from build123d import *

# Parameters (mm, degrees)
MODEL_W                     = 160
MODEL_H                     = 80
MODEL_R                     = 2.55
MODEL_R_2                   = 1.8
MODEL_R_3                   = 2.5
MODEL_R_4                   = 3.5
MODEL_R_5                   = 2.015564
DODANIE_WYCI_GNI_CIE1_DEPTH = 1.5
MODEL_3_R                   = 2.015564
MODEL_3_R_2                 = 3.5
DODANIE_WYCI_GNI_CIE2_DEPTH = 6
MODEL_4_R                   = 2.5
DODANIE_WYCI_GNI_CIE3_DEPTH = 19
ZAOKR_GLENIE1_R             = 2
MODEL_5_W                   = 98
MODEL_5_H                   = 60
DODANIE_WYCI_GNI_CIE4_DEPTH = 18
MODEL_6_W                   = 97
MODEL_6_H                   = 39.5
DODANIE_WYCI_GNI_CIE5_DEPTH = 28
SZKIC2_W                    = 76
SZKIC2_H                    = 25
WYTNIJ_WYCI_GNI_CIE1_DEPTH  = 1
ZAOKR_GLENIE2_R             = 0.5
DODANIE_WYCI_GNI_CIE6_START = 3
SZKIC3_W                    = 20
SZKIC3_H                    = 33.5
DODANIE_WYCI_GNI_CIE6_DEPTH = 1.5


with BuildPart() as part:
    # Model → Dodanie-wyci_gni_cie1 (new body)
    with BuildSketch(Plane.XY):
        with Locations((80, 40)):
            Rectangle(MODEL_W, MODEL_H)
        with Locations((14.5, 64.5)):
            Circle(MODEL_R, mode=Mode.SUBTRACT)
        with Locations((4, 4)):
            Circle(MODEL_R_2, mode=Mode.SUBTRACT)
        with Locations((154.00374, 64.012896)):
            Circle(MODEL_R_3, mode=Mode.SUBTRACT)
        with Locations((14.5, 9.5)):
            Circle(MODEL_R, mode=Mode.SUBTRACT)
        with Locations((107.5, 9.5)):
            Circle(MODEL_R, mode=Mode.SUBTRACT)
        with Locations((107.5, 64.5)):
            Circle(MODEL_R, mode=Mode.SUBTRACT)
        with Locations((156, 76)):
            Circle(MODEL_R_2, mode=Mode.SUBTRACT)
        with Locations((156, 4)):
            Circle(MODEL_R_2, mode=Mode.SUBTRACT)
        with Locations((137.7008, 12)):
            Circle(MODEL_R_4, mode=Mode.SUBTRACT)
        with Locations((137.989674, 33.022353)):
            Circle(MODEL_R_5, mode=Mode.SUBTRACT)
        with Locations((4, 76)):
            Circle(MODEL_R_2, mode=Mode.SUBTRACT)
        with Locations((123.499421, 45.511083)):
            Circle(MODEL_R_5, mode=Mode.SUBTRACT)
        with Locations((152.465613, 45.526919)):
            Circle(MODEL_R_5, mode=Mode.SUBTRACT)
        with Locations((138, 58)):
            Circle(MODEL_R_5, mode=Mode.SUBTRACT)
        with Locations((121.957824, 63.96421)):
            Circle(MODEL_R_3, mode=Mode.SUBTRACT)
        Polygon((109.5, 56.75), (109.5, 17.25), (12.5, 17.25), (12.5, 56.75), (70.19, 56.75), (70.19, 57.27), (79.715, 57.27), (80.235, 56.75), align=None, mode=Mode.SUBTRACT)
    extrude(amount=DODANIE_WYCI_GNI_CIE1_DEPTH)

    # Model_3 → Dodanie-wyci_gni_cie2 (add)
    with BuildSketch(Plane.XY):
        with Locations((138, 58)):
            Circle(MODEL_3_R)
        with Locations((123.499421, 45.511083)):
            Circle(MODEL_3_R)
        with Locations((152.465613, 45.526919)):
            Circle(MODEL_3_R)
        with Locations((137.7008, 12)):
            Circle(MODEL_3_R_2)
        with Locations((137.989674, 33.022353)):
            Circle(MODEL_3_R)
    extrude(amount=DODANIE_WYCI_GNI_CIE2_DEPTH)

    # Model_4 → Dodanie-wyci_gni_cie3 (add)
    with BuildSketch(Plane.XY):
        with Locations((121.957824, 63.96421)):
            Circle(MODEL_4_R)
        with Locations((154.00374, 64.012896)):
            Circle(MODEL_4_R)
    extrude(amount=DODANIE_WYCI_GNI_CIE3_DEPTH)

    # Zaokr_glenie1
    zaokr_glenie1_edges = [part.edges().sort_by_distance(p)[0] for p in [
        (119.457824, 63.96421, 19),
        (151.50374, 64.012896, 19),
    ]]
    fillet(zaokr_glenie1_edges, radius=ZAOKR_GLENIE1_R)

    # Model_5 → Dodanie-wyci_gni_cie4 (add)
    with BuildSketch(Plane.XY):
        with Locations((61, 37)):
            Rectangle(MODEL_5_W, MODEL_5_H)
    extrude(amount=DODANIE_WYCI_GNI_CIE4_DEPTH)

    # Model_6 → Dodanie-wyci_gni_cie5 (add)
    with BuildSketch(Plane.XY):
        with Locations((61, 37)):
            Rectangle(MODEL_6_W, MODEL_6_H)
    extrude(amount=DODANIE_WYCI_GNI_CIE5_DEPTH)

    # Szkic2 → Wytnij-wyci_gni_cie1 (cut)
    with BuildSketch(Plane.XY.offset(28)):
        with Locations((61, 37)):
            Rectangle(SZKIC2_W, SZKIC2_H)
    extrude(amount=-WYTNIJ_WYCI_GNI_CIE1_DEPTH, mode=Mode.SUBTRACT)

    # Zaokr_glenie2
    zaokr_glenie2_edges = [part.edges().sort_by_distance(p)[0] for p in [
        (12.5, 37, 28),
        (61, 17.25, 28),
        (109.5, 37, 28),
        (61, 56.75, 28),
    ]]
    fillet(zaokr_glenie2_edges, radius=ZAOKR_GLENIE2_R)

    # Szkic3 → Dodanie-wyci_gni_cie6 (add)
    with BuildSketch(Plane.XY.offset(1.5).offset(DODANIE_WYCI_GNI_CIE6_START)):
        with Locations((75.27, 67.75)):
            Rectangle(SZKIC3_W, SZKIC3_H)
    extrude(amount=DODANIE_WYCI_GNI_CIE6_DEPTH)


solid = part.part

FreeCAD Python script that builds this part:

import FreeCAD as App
import Part
import Sketcher
Q = App.Units.Quantity


def edges_at(feature, points):
    """Names of the edges that pass closest to the given points."""
    edges = feature.Shape.Edges
    near = lambda p: min(range(len(edges)), key=lambda i: edges[i].distToShape(Part.Vertex(*p))[0])
    return sorted({f"Edge{near(p) + 1}" for p in points})


def add_polygon(sketch, points):
    """Adds a closed chain of lines whose ends are joined by coincident constraints."""
    first, n = sketch.GeometryCount, len(points)
    for a, b in zip(points, points[1:] + points[:1]):
        sketch.addGeometry(Part.LineSegment(App.Vector(*a, 0), App.Vector(*b, 0)), False)
    for i in range(n):
        sketch.addConstraint(Sketcher.Constraint("Coincident", first + i, 2, first + (i + 1) % n, 1))

doc = App.newDocument("Part")
body = doc.addObject("PartDesign::Body", "Body")

# Sketch on XY plane
sketch1 = body.newObject("Sketcher::SketchObject", "Sketch")
sketch1.AttachmentSupport = (doc.getObject("XY_Plane"), [""])
sketch1.MapMode = "FlatFace"
add_polygon(sketch1, [(0, 80), (0, 0), (160, 0), (160, 80)])  # lines 0-3
sketch1.addGeometry(Part.Circle(App.Vector(4, 4, 0), App.Vector(0, 0, 1), 1.8), False)  # 4
sketch1.addGeometry(Part.Circle(App.Vector(14.5, 9.5, 0), App.Vector(0, 0, 1), 2.55), False)  # 5
add_polygon(sketch1, [(80.235, 56.75), (109.5, 56.75), (109.5, 17.25), (12.5, 17.25), (12.5, 56.75), (70.19, 56.75), (70.19, 57.27), (79.715, 57.27)])  # lines 6-13
sketch1.addGeometry(Part.Circle(App.Vector(107.5, 9.5, 0), App.Vector(0, 0, 1), 2.55), False)  # 14
sketch1.addGeometry(Part.Circle(App.Vector(156, 4, 0), App.Vector(0, 0, 1), 1.8), False)  # 15
sketch1.addGeometry(Part.Circle(App.Vector(137.7008, 12, 0), App.Vector(0, 0, 1), 3.5), False)  # 16
sketch1.addGeometry(Part.Circle(App.Vector(137.989674, 33.022353, 0), App.Vector(0, 0, 1), 2.015564), False)  # 17
sketch1.addGeometry(Part.Circle(App.Vector(14.5, 64.5, 0), App.Vector(0, 0, 1), 2.55), False)  # 18
sketch1.addGeometry(Part.Circle(App.Vector(4, 76, 0), App.Vector(0, 0, 1), 1.8), False)  # 19
sketch1.addGeometry(Part.Circle(App.Vector(123.499421, 45.511083, 0), App.Vector(0, 0, 1), 2.015564), False)  # 20
sketch1.addGeometry(Part.Circle(App.Vector(152.465613, 45.526919, 0), App.Vector(0, 0, 1), 2.015564), False)  # 21
sketch1.addGeometry(Part.Circle(App.Vector(138, 58, 0), App.Vector(0, 0, 1), 2.015564), False)  # 22
sketch1.addGeometry(Part.Circle(App.Vector(107.5, 64.5, 0), App.Vector(0, 0, 1), 2.55), False)  # 23
sketch1.addGeometry(Part.Circle(App.Vector(121.957824, 63.96421, 0), App.Vector(0, 0, 1), 2.5), False)  # 24
sketch1.addGeometry(Part.Circle(App.Vector(154.00374, 64.012896, 0), App.Vector(0, 0, 1), 2.5), False)  # 25
sketch1.addGeometry(Part.Circle(App.Vector(156, 76, 0), App.Vector(0, 0, 1), 1.8), False)  # 26
sketch1.addConstraint([
    Sketcher.Constraint("Vertical", 0),
    Sketcher.Constraint("Horizontal", 1),
    Sketcher.Constraint("Vertical", 2),
    Sketcher.Constraint("Horizontal", 3),
    Sketcher.Constraint("Horizontal", 6),
    Sketcher.Constraint("Vertical", 7),
    Sketcher.Constraint("Horizontal", 8),
    Sketcher.Constraint("Vertical", 9),
    Sketcher.Constraint("Horizontal", 10),
    Sketcher.Constraint("Vertical", 11),
    Sketcher.Constraint("Horizontal", 12),
    Sketcher.Constraint("Coincident", 0, 2, -1, 1),
    Sketcher.Constraint("Equal", 5, 14),
    Sketcher.Constraint("Equal", 4, 15),
    Sketcher.Constraint("Equal", 14, 18),
    Sketcher.Constraint("Equal", 15, 19),
    Sketcher.Constraint("Equal", 17, 20),
    Sketcher.Constraint("Equal", 20, 21),
    Sketcher.Constraint("Equal", 21, 22),
    Sketcher.Constraint("Equal", 18, 23),
    Sketcher.Constraint("Equal", 24, 25),
    Sketcher.Constraint("Equal", 19, 26),
    Sketcher.Constraint("Horizontal", 5, 3, 14, 3),
    Sketcher.Constraint("Horizontal", 4, 3, 15, 3),
    Sketcher.Constraint("Horizontal", 18, 3, 23, 3),
    Sketcher.Constraint("Horizontal", 19, 3, 26, 3),
    Sketcher.Constraint("Horizontal", 6, 2, 9, 2),
    Sketcher.Constraint("Vertical", 5, 3, 18, 3),
    Sketcher.Constraint("Vertical", 4, 3, 19, 3),
    Sketcher.Constraint("Vertical", 14, 3, 23, 3),
    Sketcher.Constraint("Vertical", 15, 3, 26, 3),
    Sketcher.Constraint("Diameter", 16, 7.0),
    Sketcher.Constraint("Diameter", 24, 5.0),
    Sketcher.Constraint("Diameter", 4, 3.6),
    Sketcher.Constraint("Diameter", 5, 5.1),
    Sketcher.Constraint("DistanceX", 1, 1, 1, 2, 160.0),
    Sketcher.Constraint("DistanceX", 8, 2, 8, 1, 97.0),
    Sketcher.Constraint("DistanceY", 0, 2, 0, 1, 80.0),
    Sketcher.Constraint("Angle", 13, Q("-45 deg")),
    Sketcher.Constraint("DistanceY", 7, 2, 7, 1, 39.5),
    Sketcher.Constraint("DistanceX", -1, 1, 4, 3, 4.0),
    Sketcher.Constraint("DistanceY", -1, 1, 4, 3, 4.0),
    Sketcher.Constraint("DistanceX", -1, 1, 15, 3, 156.0),
    Sketcher.Constraint("DistanceY", -1, 1, 16, 3, 12.0),
    Sketcher.Constraint("DistanceY", -1, 1, 19, 3, 76.0),
    Sketcher.Constraint("DistanceX", -1, 1, 22, 3, 138.0),
    Sketcher.Constraint("DistanceY", -1, 1, 22, 3, 58.0),
    Sketcher.Constraint("DistanceX", 5, 3, 14, 3, 93.0),
    Sketcher.Constraint("DistanceY", 5, 3, 18, 3, 55.0),
    Sketcher.Constraint("DistanceX", 23, 3, 6, 2, 2.0),
    Sketcher.Constraint("DistanceX", 10, 1, 10, 2, 57.69),
    Sketcher.Constraint("DistanceY", 11, 1, 11, 2, 0.52),
    Sketcher.Constraint("DistanceX", -1, 1, 5, 3, 14.5),
    Sketcher.Constraint("DistanceY", -1, 1, 5, 3, 9.5),
    Sketcher.Constraint("DistanceX", 6, 1, 6, 2, 29.265),
    Sketcher.Constraint("DistanceY", -1, 1, 6, 2, 56.75),
    Sketcher.Constraint("Diameter", 17, 4.031128),
    Sketcher.Constraint("DistanceX", -1, 1, 16, 3, 137.7008),
    Sketcher.Constraint("DistanceX", -1, 1, 20, 3, 123.499421),
    Sketcher.Constraint("DistanceY", -1, 1, 21, 3, 45.526919),
    Sketcher.Constraint("DistanceY", -1, 1, 24, 3, 63.96421),
    Sketcher.Constraint("DistanceX", -1, 1, 25, 3, 154.00374),
    Sketcher.Constraint("DistanceY", 17, 3, 20, 3, 12.48873),
    Sketcher.Constraint("DistanceX", 17, 3, 21, 3, 14.475939),
    Sketcher.Constraint("DistanceX", 20, 3, 21, 3, 28.966192),
    Sketcher.Constraint("DistanceX", 24, 3, 17, 3, 16.03185),
    Sketcher.Constraint("DistanceY", -1, 1, 17, 3, 33.022353),
    Sketcher.Constraint("DistanceY", -1, 1, 25, 3, 64.012896),
])
pad1 = body.newObject("PartDesign::Pad", "Pad")
pad1.Profile = sketch1
pad1.Length = 1.5

# Sketch on XY plane
sketch2 = body.newObject("Sketcher::SketchObject", "Sketch001")
sketch2.AttachmentSupport = (doc.getObject("XY_Plane"), [""])
sketch2.MapMode = "FlatFace"
sketch2.addGeometry([
    Part.Circle(App.Vector(138, 58, 0), App.Vector(0, 0, 1), 2.015564),  # 0
    Part.Circle(App.Vector(123.499421, 45.511083, 0), App.Vector(0, 0, 1), 2.015564),  # 1
    Part.Circle(App.Vector(152.465613, 45.526919, 0), App.Vector(0, 0, 1), 2.015564),  # 2
    Part.Circle(App.Vector(137.7008, 12, 0), App.Vector(0, 0, 1), 3.5),  # 3
    Part.Circle(App.Vector(137.989674, 33.022353, 0), App.Vector(0, 0, 1), 2.015564),  # 4
], False)
sketch2.addConstraint([
    Sketcher.Constraint("Equal", 0, 1),
    Sketcher.Constraint("Equal", 1, 2),
    Sketcher.Constraint("Equal", 2, 4),
    Sketcher.Constraint("Diameter", 3, 7.0),
    Sketcher.Constraint("DistanceX", -1, 1, 0, 3, 138.0),
    Sketcher.Constraint("DistanceY", -1, 1, 0, 3, 58.0),
    Sketcher.Constraint("DistanceY", -1, 1, 3, 3, 12.0),
    Sketcher.Constraint("Diameter", 0, 4.031128),
    Sketcher.Constraint("DistanceX", -1, 1, 3, 3, 137.7008),
    Sketcher.Constraint("DistanceX", -1, 1, 1, 3, 123.499421),
    Sketcher.Constraint("DistanceY", -1, 1, 2, 3, 45.526919),
    Sketcher.Constraint("DistanceX", 1, 3, 2, 3, 28.966192),
    Sketcher.Constraint("DistanceX", 4, 3, 2, 3, 14.475939),
    Sketcher.Constraint("DistanceY", 4, 3, 1, 3, 12.48873),
    Sketcher.Constraint("DistanceY", -1, 1, 1, 3, 45.511083),
])
pad2 = body.newObject("PartDesign::Pad", "Pad001")
pad2.Profile = sketch2
pad2.Length = 6

# Sketch on XY plane
sketch3 = body.newObject("Sketcher::SketchObject", "Sketch002")
sketch3.AttachmentSupport = (doc.getObject("XY_Plane"), [""])
sketch3.MapMode = "FlatFace"
sketch3.addGeometry([
    Part.Circle(App.Vector(121.957824, 63.96421, 0), App.Vector(0, 0, 1), 2.5),
    Part.Circle(App.Vector(154.00374, 64.012896, 0), App.Vector(0, 0, 1), 2.5),
], False)
sketch3.addConstraint([
    Sketcher.Constraint("Equal", 0, 1),
    Sketcher.Constraint("Diameter", 0, 5.0),
    Sketcher.Constraint("DistanceY", -1, 1, 0, 3, 63.96421),
    Sketcher.Constraint("DistanceX", -1, 1, 1, 3, 154.00374),
    Sketcher.Constraint("DistanceX", -1, 1, 0, 3, 121.957824),
    Sketcher.Constraint("DistanceY", -1, 1, 1, 3, 64.012896),
])
pad3 = body.newObject("PartDesign::Pad", "Pad002")
pad3.Profile = sketch3
pad3.Length = 19
doc.recompute()

fillet = body.newObject("PartDesign::Fillet", "Fillet")
fillet.Base = (pad3, edges_at(pad3, [(119.458, 63.964, 19), (151.504, 64.013, 19)]))
fillet.Radius = 2

# Sketch on XY plane
sketch4 = body.newObject("Sketcher::SketchObject", "Sketch003")
sketch4.AttachmentSupport = (doc.getObject("XY_Plane"), [""])
sketch4.MapMode = "FlatFace"
add_polygon(sketch4, [(12, 67), (12, 7), (110, 7), (110, 67)])  # lines 0-3
sketch4.addConstraint([
    Sketcher.Constraint("Vertical", 0),
    Sketcher.Constraint("Horizontal", 1),
    Sketcher.Constraint("Vertical", 2),
    Sketcher.Constraint("Horizontal", 3),
    Sketcher.Constraint("DistanceX", 1, 1, 1, 2, 98.0),
    Sketcher.Constraint("DistanceY", 0, 2, 0, 1, 60.0),
    Sketcher.Constraint("DistanceX", -1, 1, 0, 2, 12.0),
    Sketcher.Constraint("DistanceY", -1, 1, 0, 2, 7.0),
])
pad4 = body.newObject("PartDesign::Pad", "Pad003")
pad4.Profile = sketch4
pad4.Length = 18

# Sketch on XY plane
sketch5 = body.newObject("Sketcher::SketchObject", "Sketch004")
sketch5.AttachmentSupport = (doc.getObject("XY_Plane"), [""])
sketch5.MapMode = "FlatFace"
add_polygon(sketch5, [(12.5, 56.75), (12.5, 17.25), (109.5, 17.25), (109.5, 56.75)])  # lines 0-3
sketch5.addConstraint([
    Sketcher.Constraint("Vertical", 0),
    Sketcher.Constraint("Horizontal", 1),
    Sketcher.Constraint("Vertical", 2),
    Sketcher.Constraint("Horizontal", 3),
    Sketcher.Constraint("DistanceX", 1, 1, 1, 2, 97.0),
    Sketcher.Constraint("DistanceY", 0, 2, 0, 1, 39.5),
    Sketcher.Constraint("DistanceX", -1, 1, 0, 2, 12.5),
    Sketcher.Constraint("DistanceY", -1, 1, 0, 2, 17.25),
])
pad5 = body.newObject("PartDesign::Pad", "Pad004")
pad5.Profile = sketch5
pad5.Length = 28

# Sketch on XY plane
sketch6 = body.newObject("Sketcher::SketchObject", "Sketch005")
sketch6.AttachmentSupport = (doc.getObject("XY_Plane"), [""])
sketch6.MapMode = "FlatFace"
sketch6.AttachmentOffset = App.Placement(App.Vector(0, 0, 28), App.Rotation())
add_polygon(sketch6, [(23, 49.5), (23, 24.5), (99, 24.5), (99, 49.5)])  # lines 0-3
sketch6.addConstraint([
    Sketcher.Constraint("Vertical", 0),
    Sketcher.Constraint("Horizontal", 1),
    Sketcher.Constraint("Vertical", 2),
    Sketcher.Constraint("Horizontal", 3),
    Sketcher.Constraint("DistanceX", 1, 1, 1, 2, 76.0),
    Sketcher.Constraint("DistanceY", 0, 2, 0, 1, 25.0),
    Sketcher.Constraint("DistanceX", -1, 1, 0, 2, 23.0),
    Sketcher.Constraint("DistanceY", -1, 1, 0, 2, 24.5),
])
pocket1 = body.newObject("PartDesign::Pocket", "Pocket")
pocket1.Profile = sketch6
pocket1.Length = 1
doc.recompute()

fillet2 = body.newObject("PartDesign::Fillet", "Fillet001")
fillet2.Base = (pocket1, edges_at(pocket1, [
    (12.5, 37, 28),
    (61, 17.25, 28),
    (109.5, 37, 28),
    (61, 56.75, 28),
]))
fillet2.Radius = 0.5

# Sketch on XY plane
sketch7 = body.newObject("Sketcher::SketchObject", "Sketch006")
sketch7.AttachmentSupport = (doc.getObject("XY_Plane"), [""])
sketch7.MapMode = "FlatFace"
sketch7.AttachmentOffset = App.Placement(App.Vector(0, 0, 4.5), App.Rotation())
add_polygon(sketch7, [(65.27, 84.5), (65.27, 51), (85.27, 51), (85.27, 84.5)])  # lines 0-3
sketch7.addConstraint([
    Sketcher.Constraint("Vertical", 0),
    Sketcher.Constraint("Horizontal", 1),
    Sketcher.Constraint("Vertical", 2),
    Sketcher.Constraint("Horizontal", 3),
    Sketcher.Constraint("DistanceX", 1, 1, 1, 2, 20.0),
    Sketcher.Constraint("DistanceY", 0, 2, 0, 1, 33.5),
    Sketcher.Constraint("DistanceY", -1, 1, 0, 2, 51.0),
    Sketcher.Constraint("DistanceX", -1, 1, 0, 2, 65.27),
])
pad6 = body.newObject("PartDesign::Pad", "Pad005")
pad6.Profile = sketch7
pad6.Length = 1.5

doc.recompute()
